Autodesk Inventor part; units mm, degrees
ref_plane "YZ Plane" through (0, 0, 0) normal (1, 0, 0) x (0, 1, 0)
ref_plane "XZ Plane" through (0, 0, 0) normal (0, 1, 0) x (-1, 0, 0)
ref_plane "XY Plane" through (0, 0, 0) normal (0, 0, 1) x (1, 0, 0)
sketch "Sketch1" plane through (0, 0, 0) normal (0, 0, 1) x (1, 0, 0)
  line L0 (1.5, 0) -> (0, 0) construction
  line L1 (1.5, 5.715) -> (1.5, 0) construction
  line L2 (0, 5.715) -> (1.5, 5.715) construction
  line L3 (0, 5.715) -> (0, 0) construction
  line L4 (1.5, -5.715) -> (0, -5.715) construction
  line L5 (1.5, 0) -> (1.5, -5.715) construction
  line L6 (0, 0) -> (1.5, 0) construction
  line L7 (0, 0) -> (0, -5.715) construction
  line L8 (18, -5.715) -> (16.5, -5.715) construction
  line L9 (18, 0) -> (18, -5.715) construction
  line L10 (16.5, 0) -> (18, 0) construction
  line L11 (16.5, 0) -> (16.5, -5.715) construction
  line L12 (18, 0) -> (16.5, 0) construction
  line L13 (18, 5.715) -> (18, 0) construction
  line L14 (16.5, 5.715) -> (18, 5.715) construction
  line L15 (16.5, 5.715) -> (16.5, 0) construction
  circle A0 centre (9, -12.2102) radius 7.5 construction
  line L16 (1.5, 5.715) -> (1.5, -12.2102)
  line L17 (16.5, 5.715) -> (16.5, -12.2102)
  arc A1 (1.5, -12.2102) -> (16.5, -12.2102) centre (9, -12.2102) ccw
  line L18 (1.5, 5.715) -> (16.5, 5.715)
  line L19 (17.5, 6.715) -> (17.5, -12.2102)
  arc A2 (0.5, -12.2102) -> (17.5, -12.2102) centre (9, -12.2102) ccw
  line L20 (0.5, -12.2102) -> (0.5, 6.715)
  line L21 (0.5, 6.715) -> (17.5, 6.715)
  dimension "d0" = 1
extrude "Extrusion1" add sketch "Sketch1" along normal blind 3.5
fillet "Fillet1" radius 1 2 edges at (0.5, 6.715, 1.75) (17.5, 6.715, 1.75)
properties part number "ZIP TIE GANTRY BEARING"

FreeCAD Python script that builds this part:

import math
import FreeCAD as App
import Part
import Sketcher

V = App.Vector


def edges_at(feature, points):
    """Names of the edges that pass closest to the given points."""
    edges = feature.Shape.Edges
    near = lambda p: min(range(len(edges)), key=lambda i: edges[i].distToShape(Part.Vertex(*p))[0])
    return sorted({f"Edge{near(p) + 1}" for p in points})

doc = App.newDocument("Part")
body = doc.addObject("PartDesign::Body", "Body")

# Sketch on XY plane
sketch1 = body.newObject("Sketcher::SketchObject", "Sketch")
sketch1.AttachmentSupport = (doc.getObject("XY_Plane"), [""])
sketch1.MapMode = "FlatFace"
sketch1.addGeometry([
    Part.LineSegment(V(18, -12, 0), V(18, 7, 0)),  # 0
    Part.LineSegment(V(18, 7, 0), V(0, 7, 0)),  # 1
    Part.LineSegment(V(0, 7, 0), V(0, -12, 0)),  # 2
    Part.ArcOfCircle(Part.Circle(V(9, -12, 0), V(0, 0, 1), 8), math.radians(180), math.radians(360)),  # 3
    Part.LineSegment(V(2, -12, 0), V(2, 6, 0)),  # 4
    Part.LineSegment(V(2, 6, 0), V(16, 6, 0)),  # 5
    Part.LineSegment(V(16, 6, 0), V(16, -12, 0)),  # 6
    Part.ArcOfCircle(Part.Circle(V(9, -12, 0), V(0, 0, 1), 8), math.radians(180), math.radians(360)),  # 7
], False)
sketch1.addConstraint([
    Sketcher.Constraint("Coincident", 0, 2, 1, 1),
    Sketcher.Constraint("Coincident", 1, 2, 2, 1),
    Sketcher.Constraint("Tangent", 2, 2, 3, 1),
    Sketcher.Constraint("Tangent", 3, 2, 0, 1),
    Sketcher.Constraint("Coincident", 4, 2, 5, 1),
    Sketcher.Constraint("Coincident", 5, 2, 6, 1),
    Sketcher.Constraint("Tangent", 6, 2, 7, 2),
    Sketcher.Constraint("Tangent", 7, 1, 4, 1),
    Sketcher.Constraint("Vertical", 0),
    Sketcher.Constraint("Horizontal", 1),
    Sketcher.Constraint("Vertical", 2),
    Sketcher.Constraint("Vertical", 4),
    Sketcher.Constraint("Horizontal", 5),
    Sketcher.Constraint("Vertical", 6),
    Sketcher.Constraint("Coincident", 7, 3, 3, 3),
    Sketcher.Constraint("DistanceX", 1, 2, 4, 2, 1.0),
    Sketcher.Constraint("DistanceY", 4, 2, 1, 2, 1.0),
    Sketcher.Constraint("Radius", 3, 8.5),
    Sketcher.Constraint("DistanceX", -1, 1, 3, 3, 9.0),
    Sketcher.Constraint("DistanceY", 0, 1, 0, 2, 18.9252),
    Sketcher.Constraint("DistanceY", -1, 1, 0, 2, 6.715),
])
pad1 = body.newObject("PartDesign::Pad", "Pad")
pad1.Profile = sketch1
pad1.Length = 3.5
doc.recompute()

fillet = body.newObject("PartDesign::Fillet", "Fillet")
fillet.Base = (pad1, edges_at(pad1, [(0.5, 6.715, 1.75), (17.5, 6.715, 1.75)]))
fillet.Radius = 1

doc.recompute()
